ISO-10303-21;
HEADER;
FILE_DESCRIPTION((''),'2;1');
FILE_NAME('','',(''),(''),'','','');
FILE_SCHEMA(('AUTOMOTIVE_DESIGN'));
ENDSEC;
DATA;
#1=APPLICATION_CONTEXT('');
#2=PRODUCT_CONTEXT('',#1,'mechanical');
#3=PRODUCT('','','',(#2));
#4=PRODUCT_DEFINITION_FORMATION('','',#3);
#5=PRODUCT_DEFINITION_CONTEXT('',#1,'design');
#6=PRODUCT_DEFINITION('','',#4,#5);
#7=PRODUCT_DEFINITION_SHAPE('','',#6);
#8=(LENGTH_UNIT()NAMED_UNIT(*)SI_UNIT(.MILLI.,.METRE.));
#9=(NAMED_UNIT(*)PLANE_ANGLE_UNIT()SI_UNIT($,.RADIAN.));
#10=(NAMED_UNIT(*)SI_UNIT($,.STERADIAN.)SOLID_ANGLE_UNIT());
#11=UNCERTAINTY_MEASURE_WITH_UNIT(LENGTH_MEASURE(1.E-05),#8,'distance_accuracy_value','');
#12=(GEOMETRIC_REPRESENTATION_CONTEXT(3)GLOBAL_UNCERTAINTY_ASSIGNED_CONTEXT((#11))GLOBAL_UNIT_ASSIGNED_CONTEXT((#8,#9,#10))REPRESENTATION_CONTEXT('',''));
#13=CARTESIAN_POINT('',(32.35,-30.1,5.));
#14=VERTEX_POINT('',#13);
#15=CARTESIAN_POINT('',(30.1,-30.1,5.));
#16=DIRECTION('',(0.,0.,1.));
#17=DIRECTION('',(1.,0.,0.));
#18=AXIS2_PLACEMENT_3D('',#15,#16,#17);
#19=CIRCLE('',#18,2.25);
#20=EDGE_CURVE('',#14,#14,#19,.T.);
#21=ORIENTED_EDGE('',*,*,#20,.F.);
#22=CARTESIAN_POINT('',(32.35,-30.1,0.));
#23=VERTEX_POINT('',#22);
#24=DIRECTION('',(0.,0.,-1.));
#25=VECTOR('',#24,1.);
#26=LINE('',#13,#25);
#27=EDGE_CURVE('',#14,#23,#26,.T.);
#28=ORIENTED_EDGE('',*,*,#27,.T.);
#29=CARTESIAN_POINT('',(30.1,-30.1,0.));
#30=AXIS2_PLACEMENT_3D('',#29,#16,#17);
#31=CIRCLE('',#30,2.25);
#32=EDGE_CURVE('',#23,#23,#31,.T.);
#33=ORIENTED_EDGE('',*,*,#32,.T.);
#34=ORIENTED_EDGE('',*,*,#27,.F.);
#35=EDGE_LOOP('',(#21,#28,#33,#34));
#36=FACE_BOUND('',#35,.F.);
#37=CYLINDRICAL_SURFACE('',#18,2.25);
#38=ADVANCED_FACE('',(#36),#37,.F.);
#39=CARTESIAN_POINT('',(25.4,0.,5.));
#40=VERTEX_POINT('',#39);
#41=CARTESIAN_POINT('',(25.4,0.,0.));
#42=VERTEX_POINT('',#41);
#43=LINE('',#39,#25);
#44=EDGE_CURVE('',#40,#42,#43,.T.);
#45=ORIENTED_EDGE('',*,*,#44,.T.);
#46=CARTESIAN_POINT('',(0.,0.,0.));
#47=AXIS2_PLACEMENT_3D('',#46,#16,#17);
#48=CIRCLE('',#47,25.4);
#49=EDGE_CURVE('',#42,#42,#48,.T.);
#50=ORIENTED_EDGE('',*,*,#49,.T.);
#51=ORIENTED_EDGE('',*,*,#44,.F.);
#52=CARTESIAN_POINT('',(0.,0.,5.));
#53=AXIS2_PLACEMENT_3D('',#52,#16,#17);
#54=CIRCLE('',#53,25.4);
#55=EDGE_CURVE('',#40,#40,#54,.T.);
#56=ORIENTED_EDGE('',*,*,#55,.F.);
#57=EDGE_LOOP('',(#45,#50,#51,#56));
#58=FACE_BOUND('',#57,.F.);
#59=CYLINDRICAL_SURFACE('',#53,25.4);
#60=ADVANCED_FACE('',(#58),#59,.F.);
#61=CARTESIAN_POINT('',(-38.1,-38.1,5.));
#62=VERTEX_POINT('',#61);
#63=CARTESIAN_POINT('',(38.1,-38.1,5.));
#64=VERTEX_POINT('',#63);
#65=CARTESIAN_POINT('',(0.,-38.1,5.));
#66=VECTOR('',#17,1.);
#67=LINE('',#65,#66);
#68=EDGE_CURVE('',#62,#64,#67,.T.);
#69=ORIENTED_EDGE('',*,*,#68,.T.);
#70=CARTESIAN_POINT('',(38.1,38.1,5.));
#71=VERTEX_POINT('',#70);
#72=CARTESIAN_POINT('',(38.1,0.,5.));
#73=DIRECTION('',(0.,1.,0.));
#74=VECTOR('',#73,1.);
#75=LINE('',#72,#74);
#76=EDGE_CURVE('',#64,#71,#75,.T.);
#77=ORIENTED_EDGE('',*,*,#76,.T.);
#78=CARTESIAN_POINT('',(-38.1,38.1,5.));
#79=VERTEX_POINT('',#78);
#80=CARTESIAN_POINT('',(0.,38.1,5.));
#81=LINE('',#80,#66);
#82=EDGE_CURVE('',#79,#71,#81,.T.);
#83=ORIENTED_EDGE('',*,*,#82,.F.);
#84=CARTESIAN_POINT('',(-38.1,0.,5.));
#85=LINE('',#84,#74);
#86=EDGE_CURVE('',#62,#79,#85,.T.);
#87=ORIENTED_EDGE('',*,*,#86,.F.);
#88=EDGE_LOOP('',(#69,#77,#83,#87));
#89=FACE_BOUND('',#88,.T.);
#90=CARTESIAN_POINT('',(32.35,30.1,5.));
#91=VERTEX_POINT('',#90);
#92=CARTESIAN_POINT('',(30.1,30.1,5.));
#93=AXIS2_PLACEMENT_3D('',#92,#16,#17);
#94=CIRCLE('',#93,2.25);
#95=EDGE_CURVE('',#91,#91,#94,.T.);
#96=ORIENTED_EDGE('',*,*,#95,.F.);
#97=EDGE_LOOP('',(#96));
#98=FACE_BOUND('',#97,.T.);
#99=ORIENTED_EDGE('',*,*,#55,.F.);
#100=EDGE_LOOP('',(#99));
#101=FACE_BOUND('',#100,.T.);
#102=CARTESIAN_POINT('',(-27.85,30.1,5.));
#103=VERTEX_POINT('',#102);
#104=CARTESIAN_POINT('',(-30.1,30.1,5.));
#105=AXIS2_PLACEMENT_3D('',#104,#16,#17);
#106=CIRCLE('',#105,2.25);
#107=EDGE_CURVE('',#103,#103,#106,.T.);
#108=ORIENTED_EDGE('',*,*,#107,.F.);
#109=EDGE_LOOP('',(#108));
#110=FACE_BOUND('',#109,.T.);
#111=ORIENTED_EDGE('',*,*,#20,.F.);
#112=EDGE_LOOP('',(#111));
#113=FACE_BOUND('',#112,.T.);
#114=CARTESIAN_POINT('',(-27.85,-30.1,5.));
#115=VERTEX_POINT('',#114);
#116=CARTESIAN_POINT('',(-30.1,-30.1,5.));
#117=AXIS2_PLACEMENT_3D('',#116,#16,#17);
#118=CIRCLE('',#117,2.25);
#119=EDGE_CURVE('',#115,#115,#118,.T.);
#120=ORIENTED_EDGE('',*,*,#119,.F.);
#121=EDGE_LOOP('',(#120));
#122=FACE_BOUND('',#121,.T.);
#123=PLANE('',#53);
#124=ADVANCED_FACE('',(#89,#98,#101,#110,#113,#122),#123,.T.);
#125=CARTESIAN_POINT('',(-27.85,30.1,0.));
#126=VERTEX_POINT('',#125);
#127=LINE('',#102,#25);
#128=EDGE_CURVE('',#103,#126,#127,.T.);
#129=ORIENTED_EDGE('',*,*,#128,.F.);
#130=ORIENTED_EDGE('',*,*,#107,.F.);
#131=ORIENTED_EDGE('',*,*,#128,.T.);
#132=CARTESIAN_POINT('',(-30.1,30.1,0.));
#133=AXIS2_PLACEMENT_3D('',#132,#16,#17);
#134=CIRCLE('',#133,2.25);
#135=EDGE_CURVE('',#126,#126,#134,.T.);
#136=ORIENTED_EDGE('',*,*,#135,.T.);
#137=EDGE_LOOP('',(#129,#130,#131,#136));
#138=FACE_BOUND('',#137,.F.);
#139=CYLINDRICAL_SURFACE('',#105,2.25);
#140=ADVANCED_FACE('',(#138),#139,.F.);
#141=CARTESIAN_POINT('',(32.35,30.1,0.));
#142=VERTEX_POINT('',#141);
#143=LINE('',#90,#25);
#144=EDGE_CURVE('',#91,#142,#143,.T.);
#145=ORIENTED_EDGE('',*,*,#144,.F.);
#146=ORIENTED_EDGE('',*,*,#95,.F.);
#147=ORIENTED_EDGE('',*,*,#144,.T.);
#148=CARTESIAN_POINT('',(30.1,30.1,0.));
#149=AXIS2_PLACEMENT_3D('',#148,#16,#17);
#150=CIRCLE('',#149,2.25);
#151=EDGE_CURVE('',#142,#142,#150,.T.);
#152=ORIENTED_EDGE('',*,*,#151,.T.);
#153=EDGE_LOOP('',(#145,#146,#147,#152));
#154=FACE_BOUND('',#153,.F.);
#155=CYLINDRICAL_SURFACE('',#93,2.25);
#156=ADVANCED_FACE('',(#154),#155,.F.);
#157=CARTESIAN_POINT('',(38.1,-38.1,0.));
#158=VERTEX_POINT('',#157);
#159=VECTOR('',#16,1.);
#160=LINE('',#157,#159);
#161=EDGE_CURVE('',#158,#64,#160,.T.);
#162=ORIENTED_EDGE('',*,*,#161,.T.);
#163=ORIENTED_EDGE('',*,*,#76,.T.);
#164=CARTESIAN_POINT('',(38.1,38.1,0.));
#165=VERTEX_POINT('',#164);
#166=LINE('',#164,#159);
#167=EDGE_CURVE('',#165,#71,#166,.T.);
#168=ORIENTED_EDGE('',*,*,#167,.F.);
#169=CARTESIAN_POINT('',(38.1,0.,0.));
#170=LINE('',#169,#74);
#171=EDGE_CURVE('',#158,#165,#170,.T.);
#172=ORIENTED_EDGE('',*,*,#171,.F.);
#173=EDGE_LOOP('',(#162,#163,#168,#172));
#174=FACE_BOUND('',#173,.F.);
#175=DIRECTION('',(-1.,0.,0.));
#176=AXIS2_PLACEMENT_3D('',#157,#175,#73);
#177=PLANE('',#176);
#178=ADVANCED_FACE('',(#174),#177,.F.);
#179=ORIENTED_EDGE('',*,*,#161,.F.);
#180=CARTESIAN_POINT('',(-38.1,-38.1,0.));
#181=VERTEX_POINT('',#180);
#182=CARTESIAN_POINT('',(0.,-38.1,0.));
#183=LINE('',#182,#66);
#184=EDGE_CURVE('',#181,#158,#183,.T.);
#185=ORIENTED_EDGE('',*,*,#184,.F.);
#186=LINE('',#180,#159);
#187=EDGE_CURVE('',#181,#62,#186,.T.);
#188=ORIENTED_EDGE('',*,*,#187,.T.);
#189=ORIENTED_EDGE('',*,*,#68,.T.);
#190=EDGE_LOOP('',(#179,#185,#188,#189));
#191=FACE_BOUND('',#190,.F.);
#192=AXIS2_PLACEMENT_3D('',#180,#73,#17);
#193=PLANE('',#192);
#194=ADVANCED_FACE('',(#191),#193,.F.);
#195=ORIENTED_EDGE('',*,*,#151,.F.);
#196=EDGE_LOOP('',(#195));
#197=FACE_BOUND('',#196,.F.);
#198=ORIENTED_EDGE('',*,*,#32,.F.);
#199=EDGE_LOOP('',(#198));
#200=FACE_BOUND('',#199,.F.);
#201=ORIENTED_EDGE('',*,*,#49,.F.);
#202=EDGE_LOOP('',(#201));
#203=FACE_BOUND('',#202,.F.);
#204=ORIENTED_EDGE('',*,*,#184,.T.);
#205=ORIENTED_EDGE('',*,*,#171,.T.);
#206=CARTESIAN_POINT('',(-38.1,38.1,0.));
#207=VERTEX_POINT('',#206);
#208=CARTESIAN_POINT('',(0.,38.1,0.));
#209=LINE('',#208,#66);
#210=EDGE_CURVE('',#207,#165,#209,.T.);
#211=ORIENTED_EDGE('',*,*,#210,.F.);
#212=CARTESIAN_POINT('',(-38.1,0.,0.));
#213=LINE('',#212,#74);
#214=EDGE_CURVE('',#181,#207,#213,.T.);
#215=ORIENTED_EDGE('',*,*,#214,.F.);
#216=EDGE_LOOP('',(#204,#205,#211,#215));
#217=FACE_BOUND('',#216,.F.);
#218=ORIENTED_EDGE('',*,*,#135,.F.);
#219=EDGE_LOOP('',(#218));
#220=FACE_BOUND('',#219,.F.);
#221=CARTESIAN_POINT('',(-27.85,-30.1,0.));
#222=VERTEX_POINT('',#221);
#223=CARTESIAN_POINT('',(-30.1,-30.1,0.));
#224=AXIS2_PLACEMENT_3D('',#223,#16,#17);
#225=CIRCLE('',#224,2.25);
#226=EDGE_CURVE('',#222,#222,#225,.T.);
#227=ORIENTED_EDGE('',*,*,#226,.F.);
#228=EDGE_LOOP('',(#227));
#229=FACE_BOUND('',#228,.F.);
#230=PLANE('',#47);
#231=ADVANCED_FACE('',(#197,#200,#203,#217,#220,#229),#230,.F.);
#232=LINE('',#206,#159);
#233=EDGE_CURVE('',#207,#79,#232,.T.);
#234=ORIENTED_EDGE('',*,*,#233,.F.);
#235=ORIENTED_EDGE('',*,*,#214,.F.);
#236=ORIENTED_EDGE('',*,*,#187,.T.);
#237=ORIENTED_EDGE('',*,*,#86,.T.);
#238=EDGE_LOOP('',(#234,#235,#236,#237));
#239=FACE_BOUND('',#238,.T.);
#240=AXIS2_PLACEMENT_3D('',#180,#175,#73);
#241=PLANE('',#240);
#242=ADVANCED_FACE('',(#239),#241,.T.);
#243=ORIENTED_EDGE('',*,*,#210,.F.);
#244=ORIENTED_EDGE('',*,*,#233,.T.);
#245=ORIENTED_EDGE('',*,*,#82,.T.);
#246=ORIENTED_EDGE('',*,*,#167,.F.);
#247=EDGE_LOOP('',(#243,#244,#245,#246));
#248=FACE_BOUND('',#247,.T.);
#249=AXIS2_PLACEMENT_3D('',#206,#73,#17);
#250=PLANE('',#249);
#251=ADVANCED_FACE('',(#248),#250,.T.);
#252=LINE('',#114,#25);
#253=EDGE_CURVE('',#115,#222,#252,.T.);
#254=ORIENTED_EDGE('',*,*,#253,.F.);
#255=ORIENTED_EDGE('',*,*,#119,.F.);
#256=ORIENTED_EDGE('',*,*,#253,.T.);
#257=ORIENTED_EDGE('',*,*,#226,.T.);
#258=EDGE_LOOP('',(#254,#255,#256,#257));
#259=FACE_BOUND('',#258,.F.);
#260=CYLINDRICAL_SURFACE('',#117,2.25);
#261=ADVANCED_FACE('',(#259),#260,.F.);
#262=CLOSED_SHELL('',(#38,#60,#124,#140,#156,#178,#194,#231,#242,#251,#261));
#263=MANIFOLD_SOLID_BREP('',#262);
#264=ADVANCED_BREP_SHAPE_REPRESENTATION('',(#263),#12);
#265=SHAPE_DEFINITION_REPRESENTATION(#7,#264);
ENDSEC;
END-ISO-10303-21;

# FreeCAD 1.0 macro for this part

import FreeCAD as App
import Part
import Sketcher
from FreeCAD import Vector
Q = App.Units.Quantity


def add_polygon(sketch, points):
    """Adds a closed chain of lines whose ends are joined by coincident constraints."""
    first, n = sketch.GeometryCount, len(points)
    for a, b in zip(points, points[1:] + points[:1]):
        sketch.addGeometry(Part.LineSegment(App.Vector(*a, 0), App.Vector(*b, 0)), False)
    for i in range(n):
        sketch.addConstraint(Sketcher.Constraint("Coincident", first + i, 2, first + (i + 1) % n, 1))

doc = App.newDocument("Part")
params = doc.addObject("Spreadsheet::Sheet", "Params")
for row, (alias, value) in enumerate([
    ("sketch1_width", "76.2 mm"),
    ("pad1_length", "5 mm"),
    ("sketch2_diameter", "50.8 mm"),
    ("sketch3_diameter", "4.5 mm"),
], start=1):
    params.set(f"A{row}", alias)
    params.set(f"B{row}", "=" + value)
    params.setAlias(f"B{row}", alias)

body = doc.addObject("PartDesign::Body", "Body")

sketch1 = doc.addObject("Sketcher::SketchObject", "Sketch")
body.addObject(sketch1)
sketch1.AttachmentSupport = (doc.XY_Plane, [""])
sketch1.MapMode = "FlatFace"
add_polygon(sketch1, [(-38, 38), (-38, -38), (38, -38), (38, 38)])
sketch1.addConstraint(Sketcher.Constraint("Vertical", 0))
sketch1.addConstraint(Sketcher.Constraint("Horizontal", 1))
sketch1.addConstraint(Sketcher.Constraint("Vertical", 2))
sketch1.addConstraint(Sketcher.Constraint("Horizontal", 3))
sketch1.addConstraint(Sketcher.Constraint("Symmetric", 0, 2, 2, 2, -1, 1))
sketch1.addConstraint(Sketcher.Constraint("Equal", 3, 0))
sketch1.addConstraint(Sketcher.Constraint("DistanceX", 1, 1, 1, 2, Q("76.2 mm")))
sketch1.setExpression("Constraints[10]", "Params.sketch1_width")
pad1 = doc.addObject("PartDesign::Pad", "Pad")
body.addObject(pad1)
pad1.Profile = sketch1
pad1.setExpression("Length", "Params.pad1_length")

sketch2 = doc.addObject("Sketcher::SketchObject", "Sketch001")
body.addObject(sketch2)
sketch2.AttachmentSupport = (doc.XY_Plane, [""])
sketch2.MapMode = "FlatFace"
sketch2.AttachmentOffset = App.Placement(Vector(0, 0, 5), App.Rotation())
sketch2.addGeometry(Part.Circle(Vector(0, 0, 0), Vector(0, 0, 1), 25), False)
sketch2.addConstraint(Sketcher.Constraint("Coincident", 0, 3, -1, 1))
sketch2.addConstraint(Sketcher.Constraint("Diameter", 0, Q("50.8 mm")))
sketch2.setExpression("Constraints[1]", "Params.sketch2_diameter")
pocket1 = doc.addObject("PartDesign::Pocket", "Pocket")
body.addObject(pocket1)
pocket1.Profile = sketch2
pocket1.Type = "ThroughAll"

sketch3 = doc.addObject("Sketcher::SketchObject", "Sketch002")
body.addObject(sketch3)
sketch3.AttachmentSupport = (doc.XY_Plane, [""])
sketch3.MapMode = "FlatFace"
sketch3.AttachmentOffset = App.Placement(Vector(0, 0, 5), App.Rotation())
sketch3.addGeometry(Part.Circle(Vector(-30.1, -30.1, 0), Vector(0, 0, 1), 2.2), False)
sketch3.addGeometry(Part.Circle(Vector(30.1, -30.1, 0), Vector(0, 0, 1), 2.2), False)
sketch3.addGeometry(Part.Circle(Vector(30.1, 30.1, 0), Vector(0, 0, 1), 2.2), False)
sketch3.addGeometry(Part.Circle(Vector(-30.1, 30.1, 0), Vector(0, 0, 1), 2.2), False)
sketch3.addConstraint(Sketcher.Constraint("Equal", 0, 1))
sketch3.addConstraint(Sketcher.Constraint("Equal", 1, 2))
sketch3.addConstraint(Sketcher.Constraint("Equal", 2, 3))
sketch3.addConstraint(Sketcher.Constraint("Symmetric", 0, 3, 2, 3, -1, 1))
sketch3.addConstraint(Sketcher.Constraint("Symmetric", 1, 3, 3, 3, -1, 1))
sketch3.addConstraint(Sketcher.Constraint("Symmetric", 0, 3, 1, 3, -2))
sketch3.addConstraint(Sketcher.Constraint("Diameter", 0, Q("4.5 mm")))
sketch3.addConstraint(Sketcher.Constraint("DistanceX", 0, 3, -1, 1, Q("30.1 mm")))
sketch3.addConstraint(Sketcher.Constraint("DistanceY", 0, 3, -1, 1, Q("30.1 mm")))
sketch3.setExpression("Constraints[6]", "Params.sketch3_diameter")
pocket2 = doc.addObject("PartDesign::Pocket", "Pocket001")
body.addObject(pocket2)
pocket2.Profile = sketch3
pocket2.Type = "ThroughAll"

doc.recompute()
